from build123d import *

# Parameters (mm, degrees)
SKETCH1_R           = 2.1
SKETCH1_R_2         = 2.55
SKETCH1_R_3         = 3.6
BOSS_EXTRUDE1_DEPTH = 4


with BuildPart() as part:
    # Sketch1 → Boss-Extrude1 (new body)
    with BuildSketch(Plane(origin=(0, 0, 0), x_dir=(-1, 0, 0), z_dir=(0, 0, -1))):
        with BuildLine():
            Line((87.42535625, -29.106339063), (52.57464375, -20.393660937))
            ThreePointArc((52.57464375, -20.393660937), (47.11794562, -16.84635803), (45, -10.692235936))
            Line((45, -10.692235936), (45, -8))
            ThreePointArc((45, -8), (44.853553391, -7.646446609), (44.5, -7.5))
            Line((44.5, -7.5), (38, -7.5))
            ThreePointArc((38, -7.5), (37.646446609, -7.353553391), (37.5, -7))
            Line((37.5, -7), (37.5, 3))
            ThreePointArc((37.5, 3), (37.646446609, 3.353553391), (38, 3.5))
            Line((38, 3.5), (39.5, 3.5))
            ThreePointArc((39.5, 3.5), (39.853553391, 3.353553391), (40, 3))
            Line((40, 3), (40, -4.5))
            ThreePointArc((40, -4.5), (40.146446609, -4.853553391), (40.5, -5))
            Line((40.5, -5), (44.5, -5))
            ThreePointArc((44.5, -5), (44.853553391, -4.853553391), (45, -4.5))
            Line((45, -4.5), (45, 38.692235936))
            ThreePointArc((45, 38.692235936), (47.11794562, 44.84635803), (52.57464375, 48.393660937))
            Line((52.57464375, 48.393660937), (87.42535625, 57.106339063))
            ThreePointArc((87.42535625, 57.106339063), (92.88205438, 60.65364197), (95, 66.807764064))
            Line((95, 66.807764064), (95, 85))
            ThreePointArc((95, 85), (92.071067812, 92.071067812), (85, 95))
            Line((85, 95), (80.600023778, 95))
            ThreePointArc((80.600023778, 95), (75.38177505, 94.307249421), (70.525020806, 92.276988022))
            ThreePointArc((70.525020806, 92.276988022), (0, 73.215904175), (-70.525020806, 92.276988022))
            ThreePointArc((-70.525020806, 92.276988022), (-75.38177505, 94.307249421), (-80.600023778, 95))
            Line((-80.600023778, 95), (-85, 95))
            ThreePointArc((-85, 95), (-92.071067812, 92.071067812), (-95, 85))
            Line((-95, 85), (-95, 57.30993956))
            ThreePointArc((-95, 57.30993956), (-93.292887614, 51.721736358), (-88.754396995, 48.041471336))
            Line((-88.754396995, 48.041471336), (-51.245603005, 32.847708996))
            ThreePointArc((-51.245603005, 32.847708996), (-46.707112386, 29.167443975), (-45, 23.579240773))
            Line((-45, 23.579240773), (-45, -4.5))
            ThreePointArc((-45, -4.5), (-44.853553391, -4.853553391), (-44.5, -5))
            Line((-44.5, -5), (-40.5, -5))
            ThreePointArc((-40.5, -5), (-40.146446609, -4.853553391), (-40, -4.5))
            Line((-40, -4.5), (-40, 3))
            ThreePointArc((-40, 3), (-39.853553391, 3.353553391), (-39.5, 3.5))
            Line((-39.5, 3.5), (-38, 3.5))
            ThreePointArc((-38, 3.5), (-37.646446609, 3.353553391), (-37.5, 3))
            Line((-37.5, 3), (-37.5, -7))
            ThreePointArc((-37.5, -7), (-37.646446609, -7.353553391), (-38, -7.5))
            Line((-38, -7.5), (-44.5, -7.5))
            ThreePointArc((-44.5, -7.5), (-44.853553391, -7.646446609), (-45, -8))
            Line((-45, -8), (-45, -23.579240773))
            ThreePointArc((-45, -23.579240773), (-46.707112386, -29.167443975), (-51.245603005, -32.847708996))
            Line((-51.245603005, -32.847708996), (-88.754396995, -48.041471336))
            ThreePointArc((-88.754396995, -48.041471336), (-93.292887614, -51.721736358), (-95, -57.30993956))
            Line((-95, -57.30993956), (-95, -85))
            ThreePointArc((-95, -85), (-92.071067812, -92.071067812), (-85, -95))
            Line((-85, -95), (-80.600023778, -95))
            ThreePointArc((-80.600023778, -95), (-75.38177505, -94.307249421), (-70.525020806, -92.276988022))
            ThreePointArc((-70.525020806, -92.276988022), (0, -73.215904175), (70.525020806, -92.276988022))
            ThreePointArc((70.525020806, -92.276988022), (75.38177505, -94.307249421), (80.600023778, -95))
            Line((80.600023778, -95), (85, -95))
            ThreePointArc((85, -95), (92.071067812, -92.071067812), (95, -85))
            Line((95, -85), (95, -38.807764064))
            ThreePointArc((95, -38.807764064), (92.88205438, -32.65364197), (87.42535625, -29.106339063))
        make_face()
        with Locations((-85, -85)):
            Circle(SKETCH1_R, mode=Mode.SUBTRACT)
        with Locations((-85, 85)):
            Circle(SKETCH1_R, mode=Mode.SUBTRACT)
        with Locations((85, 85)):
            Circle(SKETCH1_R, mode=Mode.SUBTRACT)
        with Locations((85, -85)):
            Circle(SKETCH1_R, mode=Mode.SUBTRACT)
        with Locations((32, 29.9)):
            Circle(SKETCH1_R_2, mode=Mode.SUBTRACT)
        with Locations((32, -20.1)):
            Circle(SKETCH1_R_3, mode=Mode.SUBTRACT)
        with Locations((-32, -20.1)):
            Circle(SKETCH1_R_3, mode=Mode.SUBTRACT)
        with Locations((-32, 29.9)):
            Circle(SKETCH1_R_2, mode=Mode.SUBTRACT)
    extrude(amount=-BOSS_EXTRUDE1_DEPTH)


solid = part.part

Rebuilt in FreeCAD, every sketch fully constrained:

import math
import FreeCAD as App
import Part
import Sketcher

V = App.Vector

doc = App.newDocument("Part")
body = doc.addObject("PartDesign::Body", "Body")

# Sketch on XY plane
sketch1 = body.newObject("Sketcher::SketchObject", "Sketch")
sketch1.AttachmentSupport = (doc.getObject("XY_Plane"), [""])
sketch1.MapMode = "FlatFace"
sketch1.addGeometry([
    Part.LineSegment(V(-87.43, -29.11, 0), V(-52.57, -20.39, 0)),  # 0
    Part.ArcOfCircle(Part.Circle(V(-55, -10.69, 0), V(0, 0, 1), 10), math.radians(-76), math.radians(0)),  # 1
    Part.LineSegment(V(-45, -10.69, 0), V(-45, -8, 0)),  # 2
    Part.ArcOfCircle(Part.Circle(V(-44.5, -8, 0), V(0, 0, 1), 0.5), math.radians(90), math.radians(180)),  # 3
    Part.LineSegment(V(-44.5, -7.5, 0), V(-38, -7.5, 0)),  # 4
    Part.ArcOfCircle(Part.Circle(V(-38, -7, 0), V(0, 0, 1), 0.5), math.radians(-90), math.radians(0)),  # 5
    Part.LineSegment(V(-37.5, -7, 0), V(-37.5, 3, 0)),  # 6
    Part.ArcOfCircle(Part.Circle(V(-38, 3, 0), V(0, 0, 1), 0.5), math.radians(0), math.radians(90)),  # 7
    Part.LineSegment(V(-38, 3.5, 0), V(-39.5, 3.5, 0)),  # 8
    Part.ArcOfCircle(Part.Circle(V(-39.5, 3, 0), V(0, 0, 1), 0.5), math.radians(90), math.radians(180)),  # 9
    Part.LineSegment(V(-40, 3, 0), V(-40, -4.5, 0)),  # 10
    Part.ArcOfCircle(Part.Circle(V(-40.5, -4.5, 0), V(0, 0, 1), 0.5), math.radians(-90), math.radians(0)),  # 11
    Part.LineSegment(V(-40.5, -5, 0), V(-44.5, -5, 0)),  # 12
    Part.ArcOfCircle(Part.Circle(V(-44.5, -4.5, 0), V(0, 0, 1), 0.5), math.radians(180), math.radians(270)),  # 13
    Part.LineSegment(V(-45, -4.5, 0), V(-45, 38.69, 0)),  # 14
    Part.ArcOfCircle(Part.Circle(V(-55, 38.69, 0), V(0, 0, 1), 10), math.radians(0), math.radians(76)),  # 15
    Part.LineSegment(V(-52.57, 48.39, 0), V(-87.43, 57.11, 0)),  # 16
    Part.ArcOfCircle(Part.Circle(V(-85, 66.81, 0), V(0, 0, 1), 10), math.radians(180), math.radians(256)),  # 17
    Part.LineSegment(V(-95, 66.81, 0), V(-95, 85, 0)),  # 18
    Part.ArcOfCircle(Part.Circle(V(-85, 85, 0), V(0, 0, 1), 10), math.radians(90), math.radians(180)),  # 19
    Part.LineSegment(V(-85, 95, 0), V(-80.6, 95, 0)),  # 20
    Part.ArcOfCircle(Part.Circle(V(-80.6, 75, 0), V(0, 0, 1), 20), math.radians(60), math.radians(90)),  # 21
    Part.ArcOfCircle(Part.Circle(V(0, 213.22, 0), V(0, 0, 1), 140), math.radians(-120), math.radians(-60)),  # 22
    Part.ArcOfCircle(Part.Circle(V(80.6, 75, 0), V(0, 0, 1), 20), math.radians(90), math.radians(120)),  # 23
    Part.LineSegment(V(80.6, 95, 0), V(85, 95, 0)),  # 24
    Part.ArcOfCircle(Part.Circle(V(85, 85, 0), V(0, 0, 1), 10), math.radians(0), math.radians(90)),  # 25
    Part.LineSegment(V(95, 85, 0), V(95, 57.31, 0)),  # 26
    Part.ArcOfCircle(Part.Circle(V(85, 57.31, 0), V(0, 0, 1), 10), math.radians(-68), math.radians(0)),  # 27
    Part.LineSegment(V(88.75, 48.04, 0), V(51.25, 32.85, 0)),  # 28
    Part.ArcOfCircle(Part.Circle(V(55, 23.58, 0), V(0, 0, 1), 10), math.radians(112), math.radians(180)),  # 29
    Part.LineSegment(V(45, 23.58, 0), V(45, -4.5, 0)),  # 30
    Part.ArcOfCircle(Part.Circle(V(44.5, -4.5, 0), V(0, 0, 1), 0.5), math.radians(-90), math.radians(0)),  # 31
    Part.LineSegment(V(44.5, -5, 0), V(40.5, -5, 0)),  # 32
    Part.ArcOfCircle(Part.Circle(V(40.5, -4.5, 0), V(0, 0, 1), 0.5), math.radians(180), math.radians(270)),  # 33
    Part.LineSegment(V(40, -4.5, 0), V(40, 3, 0)),  # 34
    Part.ArcOfCircle(Part.Circle(V(39.5, 3, 0), V(0, 0, 1), 0.5), math.radians(0), math.radians(90)),  # 35
    Part.LineSegment(V(39.5, 3.5, 0), V(38, 3.5, 0)),  # 36
    Part.ArcOfCircle(Part.Circle(V(38, 3, 0), V(0, 0, 1), 0.5), math.radians(90), math.radians(180)),  # 37
    Part.LineSegment(V(37.5, 3, 0), V(37.5, -7, 0)),  # 38
    Part.ArcOfCircle(Part.Circle(V(38, -7, 0), V(0, 0, 1), 0.5), math.radians(180), math.radians(270)),  # 39
    Part.LineSegment(V(38, -7.5, 0), V(44.5, -7.5, 0)),  # 40
    Part.ArcOfCircle(Part.Circle(V(44.5, -8, 0), V(0, 0, 1), 0.5), math.radians(0), math.radians(90)),  # 41
    Part.LineSegment(V(45, -8, 0), V(45, -23.58, 0)),  # 42
    Part.ArcOfCircle(Part.Circle(V(55, -23.58, 0), V(0, 0, 1), 10), math.radians(180), math.radians(248)),  # 43
    Part.LineSegment(V(51.25, -32.85, 0), V(88.75, -48.04, 0)),  # 44
    Part.ArcOfCircle(Part.Circle(V(85, -57.31, 0), V(0, 0, 1), 10), math.radians(0), math.radians(68)),  # 45
    Part.LineSegment(V(95, -57.31, 0), V(95, -85, 0)),  # 46
    Part.ArcOfCircle(Part.Circle(V(85, -85, 0), V(0, 0, 1), 10), math.radians(-90), math.radians(0)),  # 47
    Part.LineSegment(V(85, -95, 0), V(80.6, -95, 0)),  # 48
    Part.ArcOfCircle(Part.Circle(V(80.6, -75, 0), V(0, 0, 1), 20), math.radians(-120), math.radians(-90)),  # 49
    Part.ArcOfCircle(Part.Circle(V(0, -213.22, 0), V(0, 0, 1), 140), math.radians(60), math.radians(120)),  # 50
    Part.ArcOfCircle(Part.Circle(V(-80.6, -75, 0), V(0, 0, 1), 20), math.radians(-90), math.radians(-60)),  # 51
    Part.LineSegment(V(-80.6, -95, 0), V(-85, -95, 0)),  # 52
    Part.ArcOfCircle(Part.Circle(V(-85, -85, 0), V(0, 0, 1), 10), math.radians(180), math.radians(270)),  # 53
    Part.LineSegment(V(-95, -85, 0), V(-95, -38.81, 0)),  # 54
    Part.ArcOfCircle(Part.Circle(V(-85, -38.81, 0), V(0, 0, 1), 10), math.radians(104), math.radians(180)),  # 55
    Part.Circle(V(85, -85, 0), V(0, 0, 1), 2.1),  # 56
    Part.Circle(V(32, -20.1, 0), V(0, 0, 1), 3.6),  # 57
    Part.Circle(V(-85, -85, 0), V(0, 0, 1), 2.1),  # 58
    Part.Circle(V(-32, -20.1, 0), V(0, 0, 1), 3.6),  # 59
    Part.Circle(V(32, 29.9, 0), V(0, 0, 1), 2.55),  # 60
    Part.Circle(V(85, 85, 0), V(0, 0, 1), 2.1),  # 61
    Part.Circle(V(-32, 29.9, 0), V(0, 0, 1), 2.55),  # 62
    Part.Circle(V(-85, 85, 0), V(0, 0, 1), 2.1),  # 63
], False)
sketch1.addConstraint([
    Sketcher.Constraint("Tangent", 0, 2, 1, 1),
    Sketcher.Constraint("Tangent", 1, 2, 2, 1),
    Sketcher.Constraint("Tangent", 2, 2, 3, 2),
    Sketcher.Constraint("Tangent", 3, 1, 4, 1),
    Sketcher.Constraint("Tangent", 4, 2, 5, 1),
    Sketcher.Constraint("Tangent", 5, 2, 6, 1),
    Sketcher.Constraint("Tangent", 6, 2, 7, 1),
    Sketcher.Constraint("Tangent", 7, 2, 8, 1),
    Sketcher.Constraint("Tangent", 8, 2, 9, 1),
    Sketcher.Constraint("Tangent", 9, 2, 10, 1),
    Sketcher.Constraint("Tangent", 10, 2, 11, 2),
    Sketcher.Constraint("Tangent", 11, 1, 12, 1),
    Sketcher.Constraint("Tangent", 12, 2, 13, 2),
    Sketcher.Constraint("Tangent", 13, 1, 14, 1),
    Sketcher.Constraint("Tangent", 14, 2, 15, 1),
    Sketcher.Constraint("Tangent", 15, 2, 16, 1),
    Sketcher.Constraint("Tangent", 16, 2, 17, 2),
    Sketcher.Constraint("Tangent", 17, 1, 18, 1),
    Sketcher.Constraint("Tangent", 18, 2, 19, 2),
    Sketcher.Constraint("Tangent", 19, 1, 20, 1),
    Sketcher.Constraint("Tangent", 20, 2, 21, 2),
    Sketcher.Constraint("Tangent", 21, 1, 22, 1),
    Sketcher.Constraint("Tangent", 22, 2, 23, 2),
    Sketcher.Constraint("Tangent", 23, 1, 24, 1),
    Sketcher.Constraint("Tangent", 24, 2, 25, 2),
    Sketcher.Constraint("Tangent", 25, 1, 26, 1),
    Sketcher.Constraint("Tangent", 26, 2, 27, 2),
    Sketcher.Constraint("Tangent", 27, 1, 28, 1),
    Sketcher.Constraint("Tangent", 28, 2, 29, 1),
    Sketcher.Constraint("Tangent", 29, 2, 30, 1),
    Sketcher.Constraint("Tangent", 30, 2, 31, 2),
    Sketcher.Constraint("Tangent", 31, 1, 32, 1),
    Sketcher.Constraint("Tangent", 32, 2, 33, 2),
    Sketcher.Constraint("Tangent", 33, 1, 34, 1),
    Sketcher.Constraint("Tangent", 34, 2, 35, 1),
    Sketcher.Constraint("Tangent", 35, 2, 36, 1),
    Sketcher.Constraint("Tangent", 36, 2, 37, 1),
    Sketcher.Constraint("Tangent", 37, 2, 38, 1),
    Sketcher.Constraint("Tangent", 38, 2, 39, 1),
    Sketcher.Constraint("Tangent", 39, 2, 40, 1),
    Sketcher.Constraint("Tangent", 40, 2, 41, 2),
    Sketcher.Constraint("Tangent", 41, 1, 42, 1),
    Sketcher.Constraint("Tangent", 42, 2, 43, 1),
    Sketcher.Constraint("Tangent", 43, 2, 44, 1),
    Sketcher.Constraint("Tangent", 44, 2, 45, 2),
    Sketcher.Constraint("Tangent", 45, 1, 46, 1),
    Sketcher.Constraint("Tangent", 46, 2, 47, 2),
    Sketcher.Constraint("Tangent", 47, 1, 48, 1),
    Sketcher.Constraint("Tangent", 48, 2, 49, 2),
    Sketcher.Constraint("Tangent", 49, 1, 50, 1),
    Sketcher.Constraint("Tangent", 50, 2, 51, 2),
    Sketcher.Constraint("Tangent", 51, 1, 52, 1),
    Sketcher.Constraint("Tangent", 52, 2, 53, 2),
    Sketcher.Constraint("Tangent", 53, 1, 54, 1),
    Sketcher.Constraint("Tangent", 54, 2, 55, 2),
    Sketcher.Constraint("Tangent", 55, 1, 0, 1),
    Sketcher.Constraint("Vertical", 2),
    Sketcher.Constraint("Horizontal", 4),
    Sketcher.Constraint("Vertical", 6),
    Sketcher.Constraint("Horizontal", 8),
    Sketcher.Constraint("Vertical", 10),
    Sketcher.Constraint("Horizontal", 12),
    Sketcher.Constraint("Vertical", 14),
    Sketcher.Constraint("Vertical", 18),
    Sketcher.Constraint("Horizontal", 20),
    Sketcher.Constraint("Horizontal", 24),
    Sketcher.Constraint("Vertical", 26),
    Sketcher.Constraint("Vertical", 30),
    Sketcher.Constraint("Horizontal", 32),
    Sketcher.Constraint("Vertical", 34),
    Sketcher.Constraint("Horizontal", 36),
    Sketcher.Constraint("Vertical", 38),
    Sketcher.Constraint("Horizontal", 40),
    Sketcher.Constraint("Vertical", 42),
    Sketcher.Constraint("Vertical", 46),
    Sketcher.Constraint("Horizontal", 48),
    Sketcher.Constraint("Horizontal", 52),
    Sketcher.Constraint("Vertical", 54),
    Sketcher.Constraint("Coincident", 56, 3, 47, 3),
    Sketcher.Constraint("Coincident", 58, 3, 53, 3),
    Sketcher.Constraint("Coincident", 61, 3, 25, 3),
    Sketcher.Constraint("Coincident", 63, 3, 19, 3),
    Sketcher.Constraint("Equal", 3, 5),
    Sketcher.Constraint("Equal", 5, 7),
    Sketcher.Constraint("Equal", 7, 9),
    Sketcher.Constraint("Equal", 9, 11),
    Sketcher.Constraint("Equal", 11, 13),
    Sketcher.Constraint("Equal", 1, 15),
    Sketcher.Constraint("Equal", 15, 17),
    Sketcher.Constraint("Equal", 17, 19),
    Sketcher.Constraint("Equal", 21, 23),
    Sketcher.Constraint("Equal", 19, 25),
    Sketcher.Constraint("Equal", 25, 27),
    Sketcher.Constraint("Equal", 27, 29),
    Sketcher.Constraint("Equal", 13, 31),
    Sketcher.Constraint("Equal", 31, 33),
    Sketcher.Constraint("Equal", 33, 35),
    Sketcher.Constraint("Equal", 35, 37),
    Sketcher.Constraint("Equal", 37, 39),
    Sketcher.Constraint("Equal", 39, 41),
    Sketcher.Constraint("Equal", 29, 43),
    Sketcher.Constraint("Equal", 43, 45),
    Sketcher.Constraint("Equal", 45, 47),
    Sketcher.Constraint("Equal", 23, 49),
    Sketcher.Constraint("Equal", 22, 50),
    Sketcher.Constraint("Equal", 49, 51),
    Sketcher.Constraint("Equal", 47, 53),
    Sketcher.Constraint("Equal", 53, 55),
    Sketcher.Constraint("Equal", 56, 58),
    Sketcher.Constraint("Equal", 57, 59),
    Sketcher.Constraint("Equal", 58, 61),
    Sketcher.Constraint("Equal", 60, 62),
    Sketcher.Constraint("Equal", 61, 63),
    Sketcher.Constraint("Symmetric", 19, 3, 47, 3, -1, 1),
    Sketcher.Constraint("Symmetric", 22, 3, 50, 3, -1, 1),
    Sketcher.Constraint("Symmetric", 25, 3, 53, 3, -1, 1),
    Sketcher.Constraint("Symmetric", 21, 3, 23, 3, -2),
    Sketcher.Constraint("Symmetric", 13, 3, 31, 3, -2),
    Sketcher.Constraint("Symmetric", 9, 3, 35, 3, -2),
    Sketcher.Constraint("Symmetric", 5, 3, 39, 3, -2),
    Sketcher.Constraint("Symmetric", 57, 3, 59, 3, -2),
    Sketcher.Constraint("Symmetric", 60, 3, 62, 3, -2),
    Sketcher.Constraint("Symmetric", 29, 3, 43, 3, -1),
    Sketcher.Constraint("Symmetric", 27, 3, 45, 3, -1),
    Sketcher.Constraint("Vertical", 3, 3, 13, 3),
    Sketcher.Constraint("Vertical", 57, 3, 60, 3),
    Sketcher.Constraint("Vertical", 0, 2, 15, 2),
    Sketcher.Constraint("Radius", 1, 10.0),
    Sketcher.Constraint("Radius", 21, 20.0),
    Sketcher.Constraint("Radius", 22, 140.0),
    Sketcher.Constraint("Diameter", 56, 4.2),
    Sketcher.Constraint("Diameter", 57, 7.2),
    Sketcher.Constraint("Diameter", 60, 5.1),
    Sketcher.Constraint("Radius", 3, 0.5),
    Sketcher.Constraint("DistanceX", 12, 2, 12, 1, 4.0),
    Sketcher.Constraint("DistanceY", 6, 1, 6, 2, 10.0),
    Sketcher.Constraint("DistanceX", 4, 1, 4, 2, 6.5),
    Sketcher.Constraint("DistanceY", 10, 2, 10, 1, 7.5),
    Sketcher.Constraint("DistanceX", 1, 3, -1, 1, 55.0),
    Sketcher.Constraint("DistanceY", 3, 3, -1, 1, 8.0),
    Sketcher.Constraint("DistanceX", 17, 3, -1, 1, 85.0),
    Sketcher.Constraint("DistanceY", -1, 1, 19, 3, 85.0),
    Sketcher.Constraint("DistanceX", -1, 1, 57, 3, 32.0),
    Sketcher.Constraint("DistanceY", 57, 3, -1, 1, 20.1),
    Sketcher.Constraint("DistanceY", -1, 1, 60, 3, 29.9),
    Sketcher.Constraint("DistanceY", 26, 2, 26, 1, 27.69006),
    Sketcher.Constraint("DistanceY", 30, 2, 30, 1, 28.079241),
    Sketcher.Constraint("DistanceX", 20, 1, 20, 2, 4.399976),
    Sketcher.Constraint("DistanceY", 2, 1, 2, 2, 2.692236),
    Sketcher.Constraint("DistanceY", 14, 1, 14, 2, 43.192236),
    Sketcher.Constraint("DistanceY", 18, 1, 18, 2, 18.192236),
])
pad1 = body.newObject("PartDesign::Pad", "Pad")
pad1.Profile = sketch1
pad1.Length = 4

doc.recompute()
